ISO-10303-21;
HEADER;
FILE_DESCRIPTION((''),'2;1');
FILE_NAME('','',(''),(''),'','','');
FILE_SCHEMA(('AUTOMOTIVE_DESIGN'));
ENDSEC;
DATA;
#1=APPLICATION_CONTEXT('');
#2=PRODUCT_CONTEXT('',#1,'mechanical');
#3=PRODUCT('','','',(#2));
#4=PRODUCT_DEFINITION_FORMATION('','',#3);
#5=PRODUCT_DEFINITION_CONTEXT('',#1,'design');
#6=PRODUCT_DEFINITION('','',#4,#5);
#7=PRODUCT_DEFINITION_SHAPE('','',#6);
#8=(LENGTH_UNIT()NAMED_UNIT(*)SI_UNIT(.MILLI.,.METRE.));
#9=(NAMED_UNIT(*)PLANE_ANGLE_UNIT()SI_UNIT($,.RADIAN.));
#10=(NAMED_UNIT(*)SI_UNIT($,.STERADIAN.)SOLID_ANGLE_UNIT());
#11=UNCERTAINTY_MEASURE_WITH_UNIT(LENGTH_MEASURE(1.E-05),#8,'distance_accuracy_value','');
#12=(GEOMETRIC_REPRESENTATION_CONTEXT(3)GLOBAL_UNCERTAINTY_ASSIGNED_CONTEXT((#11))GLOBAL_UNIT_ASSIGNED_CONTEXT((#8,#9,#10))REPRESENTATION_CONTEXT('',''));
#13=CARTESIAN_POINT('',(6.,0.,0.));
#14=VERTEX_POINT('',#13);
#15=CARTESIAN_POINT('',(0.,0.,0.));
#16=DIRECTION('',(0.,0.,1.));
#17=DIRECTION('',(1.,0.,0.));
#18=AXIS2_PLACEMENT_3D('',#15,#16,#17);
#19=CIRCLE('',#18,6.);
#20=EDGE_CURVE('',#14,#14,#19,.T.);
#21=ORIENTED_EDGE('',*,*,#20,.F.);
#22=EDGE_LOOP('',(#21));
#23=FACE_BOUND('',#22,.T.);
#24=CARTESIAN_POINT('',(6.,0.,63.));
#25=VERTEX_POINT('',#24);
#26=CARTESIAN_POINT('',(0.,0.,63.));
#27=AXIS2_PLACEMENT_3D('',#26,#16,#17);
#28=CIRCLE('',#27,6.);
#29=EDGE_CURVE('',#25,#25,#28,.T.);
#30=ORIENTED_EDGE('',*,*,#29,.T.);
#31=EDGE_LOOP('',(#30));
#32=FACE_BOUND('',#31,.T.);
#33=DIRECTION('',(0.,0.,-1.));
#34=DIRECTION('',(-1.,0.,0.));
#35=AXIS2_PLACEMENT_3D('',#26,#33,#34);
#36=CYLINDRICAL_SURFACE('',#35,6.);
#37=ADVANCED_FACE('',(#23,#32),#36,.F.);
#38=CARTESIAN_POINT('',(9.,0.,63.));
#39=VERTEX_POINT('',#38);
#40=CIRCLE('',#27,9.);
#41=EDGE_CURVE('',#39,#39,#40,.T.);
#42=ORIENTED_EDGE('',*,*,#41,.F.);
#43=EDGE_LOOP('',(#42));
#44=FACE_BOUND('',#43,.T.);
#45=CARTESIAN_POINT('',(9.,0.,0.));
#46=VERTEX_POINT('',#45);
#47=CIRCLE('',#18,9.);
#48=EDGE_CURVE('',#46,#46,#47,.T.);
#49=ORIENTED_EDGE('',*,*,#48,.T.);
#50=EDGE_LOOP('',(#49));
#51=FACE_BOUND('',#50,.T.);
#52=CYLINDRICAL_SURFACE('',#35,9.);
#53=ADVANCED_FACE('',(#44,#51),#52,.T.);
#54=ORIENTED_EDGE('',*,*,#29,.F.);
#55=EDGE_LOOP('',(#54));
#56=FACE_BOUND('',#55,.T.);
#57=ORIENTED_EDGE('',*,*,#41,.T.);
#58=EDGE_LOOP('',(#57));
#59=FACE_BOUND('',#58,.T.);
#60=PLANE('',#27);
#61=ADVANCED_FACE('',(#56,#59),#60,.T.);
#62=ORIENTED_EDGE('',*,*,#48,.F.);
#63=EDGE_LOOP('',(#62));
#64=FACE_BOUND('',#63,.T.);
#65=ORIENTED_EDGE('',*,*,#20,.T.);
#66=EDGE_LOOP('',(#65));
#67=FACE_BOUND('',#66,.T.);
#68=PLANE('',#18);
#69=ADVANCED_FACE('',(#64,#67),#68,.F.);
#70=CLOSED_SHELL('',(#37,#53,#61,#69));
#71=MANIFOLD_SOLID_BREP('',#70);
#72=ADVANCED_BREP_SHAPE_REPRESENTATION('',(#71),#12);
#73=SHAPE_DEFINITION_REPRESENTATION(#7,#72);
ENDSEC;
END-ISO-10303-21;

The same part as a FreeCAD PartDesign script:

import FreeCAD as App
import Part
import Sketcher
Q = App.Units.Quantity

doc = App.newDocument("Part")
body = doc.addObject("PartDesign::Body", "Body")

# Sketch on XY plane
sketch1 = doc.addObject("Sketcher::SketchObject", "Sketch")
body.addObject(sketch1)
sketch1.AttachmentSupport = (doc.XY_Plane, [""])
sketch1.MapMode = "FlatFace"
sketch1.addGeometry([
    Part.Circle(App.Vector(0, 0, 0), App.Vector(0, 0, 1), 9),
    Part.Circle(App.Vector(0, 0, 0), App.Vector(0, 0, 1), 6),
], False)
sketch1.addConstraint([
    Sketcher.Constraint("Coincident", 0, 3, -1, 1),
    Sketcher.Constraint("Coincident", 1, 3, -1, 1),
    Sketcher.Constraint("Diameter", 0, Q("18 mm")),
    Sketcher.Constraint("Diameter", 1, Q("12 mm")),
])
pad1 = doc.addObject("PartDesign::Pad", "Pad")
body.addObject(pad1)
pad1.Profile = sketch1
pad1.Length = 63

doc.recompute()
